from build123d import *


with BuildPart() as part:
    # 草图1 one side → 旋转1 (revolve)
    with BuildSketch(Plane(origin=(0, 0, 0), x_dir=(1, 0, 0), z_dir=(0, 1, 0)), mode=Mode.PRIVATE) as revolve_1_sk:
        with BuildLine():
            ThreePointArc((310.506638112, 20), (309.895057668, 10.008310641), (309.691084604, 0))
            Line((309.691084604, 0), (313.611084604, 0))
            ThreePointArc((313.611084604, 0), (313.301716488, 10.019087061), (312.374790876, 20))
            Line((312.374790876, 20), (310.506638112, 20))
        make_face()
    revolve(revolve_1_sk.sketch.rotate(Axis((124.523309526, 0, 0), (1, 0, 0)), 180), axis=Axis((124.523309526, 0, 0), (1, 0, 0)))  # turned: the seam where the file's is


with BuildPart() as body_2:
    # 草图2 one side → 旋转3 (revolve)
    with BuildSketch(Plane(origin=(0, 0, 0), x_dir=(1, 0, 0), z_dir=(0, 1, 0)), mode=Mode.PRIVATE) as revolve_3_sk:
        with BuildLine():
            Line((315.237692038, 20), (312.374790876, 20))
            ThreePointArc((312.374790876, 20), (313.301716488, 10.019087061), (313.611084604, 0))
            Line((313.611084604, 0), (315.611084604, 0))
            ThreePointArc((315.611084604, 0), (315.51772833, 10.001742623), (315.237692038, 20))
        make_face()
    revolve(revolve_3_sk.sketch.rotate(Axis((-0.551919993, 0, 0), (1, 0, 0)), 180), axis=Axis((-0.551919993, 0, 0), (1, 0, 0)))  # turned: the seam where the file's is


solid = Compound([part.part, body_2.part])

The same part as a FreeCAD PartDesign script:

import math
import FreeCAD as App
import Part
import Sketcher
from FreeCAD import Vector
Q = App.Units.Quantity

doc = App.newDocument("Part")
body = doc.addObject("PartDesign::Body", "Body")

# Sketch on XZ plane
sketch1 = body.newObject("Sketcher::SketchObject", "Sketch")
sketch1.AttachmentSupport = (doc.getObject("XZ_Plane"), [""])
sketch1.MapMode = "FlatFace"
sketch1.addGeometry([
    Part.ArcOfCircle(Part.Circle(Vector(555.3, 0, 0), Vector(0, 0, 1), 245.6), math.radians(-180), math.radians(-175.33)),
    Part.LineSegment(Vector(309.7, 0, 0), Vector(313.6, 0, 0)),
    Part.ArcOfCircle(Part.Circle(Vector(151.2, 0, 0), Vector(0, 0, 1), 162.4), math.radians(-7.07), math.radians(0)),
    Part.LineSegment(Vector(312.4, -20, 0), Vector(310.5, -20, 0)),
], False)
sketch1.addConstraint([
    Sketcher.Constraint("Coincident", 0, 1, 1, 1),
    Sketcher.Constraint("Coincident", 1, 2, 2, 2),
    Sketcher.Constraint("Coincident", 2, 1, 3, 1),
    Sketcher.Constraint("Coincident", 3, 2, 0, 2),
    Sketcher.Constraint("Horizontal", 1),
    Sketcher.Constraint("Horizontal", 3),
    Sketcher.Constraint("PointOnObject", 0, 3, -1),
    Sketcher.Constraint("PointOnObject", 2, 3, -1),
    Sketcher.Constraint("PointOnObject", 0, 1, -1),
    Sketcher.Constraint("Radius", 0, Q("245.64 mm")),
    Sketcher.Constraint("DistanceY", 2, 1, -1, 1, Q("20 mm")),
    Sketcher.Constraint("Radius", 2, Q("162.392 mm")),
    Sketcher.Constraint("DistanceX", 1, 1, 1, 2, Q("3.92 mm")),
    Sketcher.Constraint("DistanceX", -1, 1, 2, 1, Q("312.374791 mm")),
])
revolution = body.newObject("PartDesign::Revolution", "Revolution")
revolution.Profile = sketch1
revolution.ReferenceAxis = (sketch1, ["H_Axis"])
revolution.Angle = 360
body2 = doc.addObject("PartDesign::Body", "Body001")

# Sketch on XZ plane
sketch2 = body2.newObject("Sketcher::SketchObject", "Sketch001")
sketch2.AttachmentSupport = (doc.getObject("XZ_Plane001"), [""])
sketch2.MapMode = "FlatFace"
sketch2.addGeometry([
    Part.LineSegment(Vector(315.2, -20, 0), Vector(312.4, -20, 0)),
    Part.ArcOfCircle(Part.Circle(Vector(151.2, 0, 0), Vector(0, 0, 1), 162.4), math.radians(-7.07), math.radians(0)),
    Part.LineSegment(Vector(313.6, 0, 0), Vector(315.6, 0, 0)),
    Part.ArcOfCircle(Part.Circle(Vector(-220.2, 0, 0), Vector(0, 0, 1), 535.8), math.radians(-2.14), math.radians(0)),
], False)
sketch2.addConstraint([
    Sketcher.Constraint("Coincident", 0, 2, 1, 1),
    Sketcher.Constraint("Coincident", 1, 2, 2, 1),
    Sketcher.Constraint("Coincident", 2, 2, 3, 2),
    Sketcher.Constraint("Coincident", 3, 1, 0, 1),
    Sketcher.Constraint("Horizontal", 0),
    Sketcher.Constraint("Horizontal", 2),
    Sketcher.Constraint("PointOnObject", 1, 3, -1),
    Sketcher.Constraint("PointOnObject", 3, 3, -1),
    Sketcher.Constraint("PointOnObject", 1, 2, -1),
    Sketcher.Constraint("DistanceX", 2, 1, 2, 2, Q("2 mm")),
    Sketcher.Constraint("DistanceY", 0, 2, -1, 1, Q("20 mm")),
    Sketcher.Constraint("Radius", 1, Q("162.392 mm")),
    Sketcher.Constraint("Radius", 3, Q("535.815998 mm")),
    Sketcher.Constraint("DistanceX", -1, 1, 0, 2, Q("312.374791 mm")),
])
revolution2 = body2.newObject("PartDesign::Revolution", "Revolution001")
revolution2.Profile = sketch2
revolution2.ReferenceAxis = (sketch2, ["H_Axis"])
revolution2.Angle = 360

doc.recompute()
